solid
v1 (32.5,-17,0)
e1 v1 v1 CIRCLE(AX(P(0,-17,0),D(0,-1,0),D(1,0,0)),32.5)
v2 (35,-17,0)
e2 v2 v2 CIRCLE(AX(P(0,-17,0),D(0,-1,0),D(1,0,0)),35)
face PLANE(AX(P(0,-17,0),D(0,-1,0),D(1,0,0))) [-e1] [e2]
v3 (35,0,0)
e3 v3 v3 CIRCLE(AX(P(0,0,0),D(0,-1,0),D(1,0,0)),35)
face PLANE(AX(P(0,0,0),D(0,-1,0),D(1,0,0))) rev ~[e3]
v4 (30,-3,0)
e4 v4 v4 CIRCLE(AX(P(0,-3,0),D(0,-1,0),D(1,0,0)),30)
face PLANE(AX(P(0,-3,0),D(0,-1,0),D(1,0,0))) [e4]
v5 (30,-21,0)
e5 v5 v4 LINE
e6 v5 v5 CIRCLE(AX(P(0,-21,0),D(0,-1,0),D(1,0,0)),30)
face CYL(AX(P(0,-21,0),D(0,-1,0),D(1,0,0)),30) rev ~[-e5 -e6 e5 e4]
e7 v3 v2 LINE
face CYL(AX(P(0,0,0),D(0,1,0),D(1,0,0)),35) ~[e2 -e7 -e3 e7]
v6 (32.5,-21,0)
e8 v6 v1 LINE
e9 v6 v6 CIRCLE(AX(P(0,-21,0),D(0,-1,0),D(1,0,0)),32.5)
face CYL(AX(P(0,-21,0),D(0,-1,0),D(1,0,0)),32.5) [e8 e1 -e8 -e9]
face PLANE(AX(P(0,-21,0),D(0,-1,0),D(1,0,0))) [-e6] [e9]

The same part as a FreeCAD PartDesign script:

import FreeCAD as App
import Part
import Sketcher
Q = App.Units.Quantity

doc = App.newDocument("Part")
params = doc.addObject("Spreadsheet::Sheet", "Params")
for row, (alias, value) in enumerate([
    ("sketch1_diameter", "70 mm"),
    ("pad1_length", "21 mm"),
    ("sketch2_diameter", "60 mm"),
    ("pocket1_length", "18 mm"),
    ("sketch3_diameter", "70 mm"),
    ("sketch3_diameter2", "65 mm"),
    ("pocket2_length", "4 mm"),
], start=1):
    params.set(f"A{row}", alias)
    params.set(f"B{row}", "=" + value)
    params.setAlias(f"B{row}", alias)

body = doc.addObject("PartDesign::Body", "Body")

sketch1 = body.newObject("Sketcher::SketchObject", "Sketch")
sketch1.AttachmentSupport = (doc.getObject("XZ_Plane"), [""])
sketch1.MapMode = "FlatFace"
sketch1.addGeometry(Part.Circle(App.Vector(0, 0, 0), App.Vector(0, 0, 1), 35), False)
sketch1.addConstraint([
    Sketcher.Constraint("Coincident", 0, 3, -1, 1),
    Sketcher.Constraint("Diameter", 0, Q("70 mm")),
])
sketch1.setExpression("Constraints[1]", "Params.sketch1_diameter")
pad1 = body.newObject("PartDesign::Pad", "Pad")
pad1.Profile = sketch1
pad1.setExpression("Length", "Params.pad1_length")

sketch2 = body.newObject("Sketcher::SketchObject", "Sketch001")
sketch2.AttachmentSupport = (doc.getObject("XZ_Plane"), [""])
sketch2.MapMode = "FlatFace"
sketch2.AttachmentOffset = App.Placement(App.Vector(0, 0, 21), App.Rotation())
sketch2.addGeometry(Part.Circle(App.Vector(0, 0, 0), App.Vector(0, 0, 1), 30), False)
sketch2.addConstraint([
    Sketcher.Constraint("Coincident", 0, 3, -1, 1),
    Sketcher.Constraint("Diameter", 0, Q("60 mm")),
])
sketch2.setExpression("Constraints[1]", "Params.sketch2_diameter")
pocket1 = body.newObject("PartDesign::Pocket", "Pocket")
pocket1.Profile = sketch2
pocket1.setExpression("Length", "Params.pocket1_length")

sketch3 = body.newObject("Sketcher::SketchObject", "Sketch002")
sketch3.AttachmentSupport = (doc.getObject("XZ_Plane"), [""])
sketch3.MapMode = "FlatFace"
sketch3.AttachmentOffset = App.Placement(App.Vector(0, 0, 21), App.Rotation())
sketch3.addGeometry([
    Part.Circle(App.Vector(0, 0, 0), App.Vector(0, 0, 1), 35),
    Part.Circle(App.Vector(0, 0, 0), App.Vector(0, 0, 1), 32),
], False)
sketch3.addConstraint([
    Sketcher.Constraint("Coincident", 0, 3, -1, 1),
    Sketcher.Constraint("Coincident", 1, 3, -1, 1),
    Sketcher.Constraint("Diameter", 0, Q("70 mm")),
    Sketcher.Constraint("Diameter", 1, Q("65 mm")),
])
sketch3.setExpression("Constraints[2]", "Params.sketch3_diameter")
sketch3.setExpression("Constraints[3]", "Params.sketch3_diameter2")
pocket2 = body.newObject("PartDesign::Pocket", "Pocket001")
pocket2.Profile = sketch3
pocket2.setExpression("Length", "Params.pocket2_length")

doc.recompute()
